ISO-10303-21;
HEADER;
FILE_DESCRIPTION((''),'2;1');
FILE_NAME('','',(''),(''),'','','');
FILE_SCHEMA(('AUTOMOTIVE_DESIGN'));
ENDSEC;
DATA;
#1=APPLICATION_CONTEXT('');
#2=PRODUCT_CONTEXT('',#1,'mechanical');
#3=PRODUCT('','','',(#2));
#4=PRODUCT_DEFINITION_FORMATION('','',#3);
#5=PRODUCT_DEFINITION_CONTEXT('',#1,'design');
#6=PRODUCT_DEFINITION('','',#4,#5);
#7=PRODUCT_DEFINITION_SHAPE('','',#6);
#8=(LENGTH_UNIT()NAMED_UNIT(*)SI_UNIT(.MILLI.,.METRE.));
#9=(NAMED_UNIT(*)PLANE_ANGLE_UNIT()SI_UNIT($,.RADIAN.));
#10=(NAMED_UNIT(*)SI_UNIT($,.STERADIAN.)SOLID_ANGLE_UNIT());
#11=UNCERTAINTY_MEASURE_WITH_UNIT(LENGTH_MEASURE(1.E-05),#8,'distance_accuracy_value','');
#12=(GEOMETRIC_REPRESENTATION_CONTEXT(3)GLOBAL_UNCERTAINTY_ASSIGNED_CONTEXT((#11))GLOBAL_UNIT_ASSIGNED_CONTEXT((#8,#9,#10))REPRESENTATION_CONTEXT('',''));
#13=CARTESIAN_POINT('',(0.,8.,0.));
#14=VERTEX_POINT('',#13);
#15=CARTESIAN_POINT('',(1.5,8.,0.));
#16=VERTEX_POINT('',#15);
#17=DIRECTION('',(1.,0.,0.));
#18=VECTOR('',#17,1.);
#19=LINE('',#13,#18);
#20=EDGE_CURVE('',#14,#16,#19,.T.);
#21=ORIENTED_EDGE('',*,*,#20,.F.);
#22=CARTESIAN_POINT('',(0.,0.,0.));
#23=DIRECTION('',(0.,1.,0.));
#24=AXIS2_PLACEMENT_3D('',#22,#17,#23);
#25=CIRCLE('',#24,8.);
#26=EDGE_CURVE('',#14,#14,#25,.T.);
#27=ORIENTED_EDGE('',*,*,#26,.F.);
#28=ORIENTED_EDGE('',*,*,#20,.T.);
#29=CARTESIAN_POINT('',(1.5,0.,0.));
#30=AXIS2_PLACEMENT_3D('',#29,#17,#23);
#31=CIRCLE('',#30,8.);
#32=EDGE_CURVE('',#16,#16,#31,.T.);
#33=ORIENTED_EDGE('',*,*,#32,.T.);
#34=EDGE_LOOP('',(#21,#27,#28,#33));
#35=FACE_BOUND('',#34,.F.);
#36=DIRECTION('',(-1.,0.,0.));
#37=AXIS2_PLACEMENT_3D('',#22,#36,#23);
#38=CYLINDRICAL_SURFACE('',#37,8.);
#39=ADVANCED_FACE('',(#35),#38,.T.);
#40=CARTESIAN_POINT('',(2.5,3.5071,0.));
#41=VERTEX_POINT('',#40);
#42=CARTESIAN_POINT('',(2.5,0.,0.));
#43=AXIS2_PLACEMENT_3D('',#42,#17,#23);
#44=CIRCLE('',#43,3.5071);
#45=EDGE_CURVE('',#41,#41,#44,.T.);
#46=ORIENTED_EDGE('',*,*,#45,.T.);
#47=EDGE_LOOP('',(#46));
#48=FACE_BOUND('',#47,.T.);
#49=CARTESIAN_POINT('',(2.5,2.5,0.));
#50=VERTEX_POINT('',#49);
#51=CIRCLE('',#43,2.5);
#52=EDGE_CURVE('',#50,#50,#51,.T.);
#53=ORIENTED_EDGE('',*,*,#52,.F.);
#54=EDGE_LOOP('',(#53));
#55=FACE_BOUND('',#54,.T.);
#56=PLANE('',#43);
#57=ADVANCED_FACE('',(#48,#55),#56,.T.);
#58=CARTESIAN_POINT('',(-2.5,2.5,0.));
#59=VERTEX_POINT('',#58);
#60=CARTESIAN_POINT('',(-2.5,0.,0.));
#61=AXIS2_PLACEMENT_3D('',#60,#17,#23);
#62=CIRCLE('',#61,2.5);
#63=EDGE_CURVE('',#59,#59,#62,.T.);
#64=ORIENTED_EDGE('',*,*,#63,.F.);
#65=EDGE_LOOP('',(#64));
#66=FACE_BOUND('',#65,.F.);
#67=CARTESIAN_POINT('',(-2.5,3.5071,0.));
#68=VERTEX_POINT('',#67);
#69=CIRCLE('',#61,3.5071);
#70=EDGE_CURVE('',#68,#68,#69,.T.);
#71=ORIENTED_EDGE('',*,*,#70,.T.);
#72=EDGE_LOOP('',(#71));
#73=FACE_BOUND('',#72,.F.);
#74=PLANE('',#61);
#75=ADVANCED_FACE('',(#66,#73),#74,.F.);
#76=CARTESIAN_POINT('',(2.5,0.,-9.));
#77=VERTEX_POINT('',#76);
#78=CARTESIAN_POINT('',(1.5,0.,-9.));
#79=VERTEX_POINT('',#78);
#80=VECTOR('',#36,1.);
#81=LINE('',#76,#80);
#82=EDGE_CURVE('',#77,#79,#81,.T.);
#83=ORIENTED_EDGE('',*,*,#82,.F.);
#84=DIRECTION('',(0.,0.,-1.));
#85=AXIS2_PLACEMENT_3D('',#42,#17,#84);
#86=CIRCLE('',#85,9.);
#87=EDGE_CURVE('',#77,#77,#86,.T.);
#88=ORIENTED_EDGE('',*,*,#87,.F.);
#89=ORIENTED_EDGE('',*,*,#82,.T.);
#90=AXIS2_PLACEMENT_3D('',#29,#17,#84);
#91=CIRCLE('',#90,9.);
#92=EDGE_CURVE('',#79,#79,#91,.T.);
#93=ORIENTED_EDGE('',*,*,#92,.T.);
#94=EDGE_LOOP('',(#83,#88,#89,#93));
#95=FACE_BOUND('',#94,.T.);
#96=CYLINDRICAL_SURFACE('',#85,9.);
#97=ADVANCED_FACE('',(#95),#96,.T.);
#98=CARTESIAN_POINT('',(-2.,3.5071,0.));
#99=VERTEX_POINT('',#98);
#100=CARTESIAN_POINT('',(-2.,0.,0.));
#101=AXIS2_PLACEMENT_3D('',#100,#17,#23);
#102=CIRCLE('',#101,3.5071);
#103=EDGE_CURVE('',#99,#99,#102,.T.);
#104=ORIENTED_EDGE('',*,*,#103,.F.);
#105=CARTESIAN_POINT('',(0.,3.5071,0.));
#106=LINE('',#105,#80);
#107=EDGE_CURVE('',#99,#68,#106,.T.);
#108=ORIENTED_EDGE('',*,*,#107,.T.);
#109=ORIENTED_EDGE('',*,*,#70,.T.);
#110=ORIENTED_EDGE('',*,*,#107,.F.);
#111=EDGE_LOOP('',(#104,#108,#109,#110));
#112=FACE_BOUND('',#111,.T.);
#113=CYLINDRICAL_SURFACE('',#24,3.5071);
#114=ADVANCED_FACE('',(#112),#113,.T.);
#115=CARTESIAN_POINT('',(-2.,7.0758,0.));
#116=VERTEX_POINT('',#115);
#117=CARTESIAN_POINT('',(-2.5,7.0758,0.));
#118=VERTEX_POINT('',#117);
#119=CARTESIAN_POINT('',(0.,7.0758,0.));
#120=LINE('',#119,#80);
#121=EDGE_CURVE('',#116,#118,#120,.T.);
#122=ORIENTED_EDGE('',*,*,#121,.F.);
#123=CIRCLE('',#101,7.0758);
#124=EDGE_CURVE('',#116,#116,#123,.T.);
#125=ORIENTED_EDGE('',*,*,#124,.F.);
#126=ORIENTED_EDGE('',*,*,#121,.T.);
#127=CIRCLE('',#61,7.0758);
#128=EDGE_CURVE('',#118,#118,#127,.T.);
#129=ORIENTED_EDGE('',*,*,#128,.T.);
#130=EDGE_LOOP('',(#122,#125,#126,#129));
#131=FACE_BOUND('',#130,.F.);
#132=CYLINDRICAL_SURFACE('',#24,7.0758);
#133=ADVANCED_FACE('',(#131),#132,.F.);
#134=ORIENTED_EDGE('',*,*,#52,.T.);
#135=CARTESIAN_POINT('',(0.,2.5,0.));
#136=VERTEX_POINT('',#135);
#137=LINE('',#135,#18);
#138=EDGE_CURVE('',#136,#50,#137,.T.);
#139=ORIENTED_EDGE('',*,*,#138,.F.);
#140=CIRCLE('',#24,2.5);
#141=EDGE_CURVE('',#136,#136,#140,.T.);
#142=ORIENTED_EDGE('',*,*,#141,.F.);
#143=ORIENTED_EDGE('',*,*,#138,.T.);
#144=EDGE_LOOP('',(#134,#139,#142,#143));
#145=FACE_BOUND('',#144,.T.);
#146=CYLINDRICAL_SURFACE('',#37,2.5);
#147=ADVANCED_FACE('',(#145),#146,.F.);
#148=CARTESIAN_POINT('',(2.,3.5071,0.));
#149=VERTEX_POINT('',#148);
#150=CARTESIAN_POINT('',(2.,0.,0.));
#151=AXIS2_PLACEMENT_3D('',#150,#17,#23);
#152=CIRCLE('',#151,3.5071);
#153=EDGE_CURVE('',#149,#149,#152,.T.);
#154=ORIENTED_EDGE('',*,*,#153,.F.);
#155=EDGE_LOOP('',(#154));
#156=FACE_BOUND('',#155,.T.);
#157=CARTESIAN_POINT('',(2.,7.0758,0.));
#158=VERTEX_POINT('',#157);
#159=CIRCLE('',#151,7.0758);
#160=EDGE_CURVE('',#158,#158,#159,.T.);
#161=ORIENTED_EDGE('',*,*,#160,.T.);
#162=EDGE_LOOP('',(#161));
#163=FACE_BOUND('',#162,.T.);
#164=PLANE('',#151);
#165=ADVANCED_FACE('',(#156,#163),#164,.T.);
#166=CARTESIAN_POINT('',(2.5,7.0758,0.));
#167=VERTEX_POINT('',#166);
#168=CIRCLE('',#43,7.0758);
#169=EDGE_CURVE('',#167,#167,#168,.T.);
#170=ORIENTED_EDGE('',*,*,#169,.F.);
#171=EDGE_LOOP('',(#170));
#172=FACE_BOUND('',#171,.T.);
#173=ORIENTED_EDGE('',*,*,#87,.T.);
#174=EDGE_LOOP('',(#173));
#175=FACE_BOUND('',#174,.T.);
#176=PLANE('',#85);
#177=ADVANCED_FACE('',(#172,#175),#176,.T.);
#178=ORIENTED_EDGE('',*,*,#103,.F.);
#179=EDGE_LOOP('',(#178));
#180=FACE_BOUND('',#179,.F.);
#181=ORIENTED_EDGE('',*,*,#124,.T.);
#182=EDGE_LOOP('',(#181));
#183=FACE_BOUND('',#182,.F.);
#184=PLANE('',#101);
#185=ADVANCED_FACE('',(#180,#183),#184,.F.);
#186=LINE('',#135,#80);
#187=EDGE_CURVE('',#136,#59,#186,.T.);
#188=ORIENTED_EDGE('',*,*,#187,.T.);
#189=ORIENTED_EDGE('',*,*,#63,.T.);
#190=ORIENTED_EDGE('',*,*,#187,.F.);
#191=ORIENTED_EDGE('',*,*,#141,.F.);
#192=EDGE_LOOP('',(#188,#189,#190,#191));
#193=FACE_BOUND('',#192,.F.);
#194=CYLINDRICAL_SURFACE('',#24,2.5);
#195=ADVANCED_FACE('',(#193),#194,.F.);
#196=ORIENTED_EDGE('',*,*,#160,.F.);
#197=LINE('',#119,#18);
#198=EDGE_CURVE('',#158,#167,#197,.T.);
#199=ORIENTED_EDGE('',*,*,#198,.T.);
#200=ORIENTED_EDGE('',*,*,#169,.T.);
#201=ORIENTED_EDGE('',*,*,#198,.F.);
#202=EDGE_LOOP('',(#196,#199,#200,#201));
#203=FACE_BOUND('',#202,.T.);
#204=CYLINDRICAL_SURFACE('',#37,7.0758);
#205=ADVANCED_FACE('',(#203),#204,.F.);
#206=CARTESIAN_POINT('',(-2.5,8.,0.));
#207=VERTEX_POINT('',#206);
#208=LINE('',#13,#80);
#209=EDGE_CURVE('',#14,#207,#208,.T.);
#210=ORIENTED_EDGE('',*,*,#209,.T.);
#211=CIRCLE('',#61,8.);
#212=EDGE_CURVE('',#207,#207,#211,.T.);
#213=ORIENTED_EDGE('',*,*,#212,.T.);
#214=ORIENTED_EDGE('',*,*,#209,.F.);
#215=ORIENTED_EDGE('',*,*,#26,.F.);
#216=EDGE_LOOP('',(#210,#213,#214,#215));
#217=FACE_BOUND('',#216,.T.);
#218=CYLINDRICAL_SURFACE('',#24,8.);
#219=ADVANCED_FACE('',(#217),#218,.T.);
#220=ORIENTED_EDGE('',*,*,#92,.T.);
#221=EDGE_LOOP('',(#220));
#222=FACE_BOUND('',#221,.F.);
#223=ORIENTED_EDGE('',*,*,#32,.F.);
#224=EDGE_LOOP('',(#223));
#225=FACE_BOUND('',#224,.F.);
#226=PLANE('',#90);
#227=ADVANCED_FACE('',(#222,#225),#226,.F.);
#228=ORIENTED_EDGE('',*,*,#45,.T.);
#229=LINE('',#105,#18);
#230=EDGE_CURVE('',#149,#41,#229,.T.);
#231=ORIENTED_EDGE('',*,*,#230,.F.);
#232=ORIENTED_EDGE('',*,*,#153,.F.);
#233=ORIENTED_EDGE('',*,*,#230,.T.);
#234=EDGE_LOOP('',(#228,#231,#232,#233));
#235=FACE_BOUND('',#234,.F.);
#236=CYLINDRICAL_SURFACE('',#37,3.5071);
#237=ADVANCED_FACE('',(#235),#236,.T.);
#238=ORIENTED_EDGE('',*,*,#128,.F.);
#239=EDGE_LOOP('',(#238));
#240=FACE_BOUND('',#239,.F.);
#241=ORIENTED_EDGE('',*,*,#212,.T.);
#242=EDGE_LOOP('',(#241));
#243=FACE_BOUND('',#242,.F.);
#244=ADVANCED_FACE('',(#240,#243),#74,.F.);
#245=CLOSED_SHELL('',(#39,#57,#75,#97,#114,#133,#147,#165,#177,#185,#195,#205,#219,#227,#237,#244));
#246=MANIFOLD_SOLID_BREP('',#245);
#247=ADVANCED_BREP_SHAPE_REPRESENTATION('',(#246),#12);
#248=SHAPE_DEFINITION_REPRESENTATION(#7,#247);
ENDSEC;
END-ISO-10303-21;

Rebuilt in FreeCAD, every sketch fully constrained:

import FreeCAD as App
import Part
import Sketcher

V = App.Vector

doc = App.newDocument("Part")
params = doc.addObject("Spreadsheet::Sheet", "Params")
for row, (alias, value) in enumerate([
    ("sketch1_diameter", "16 mm"),
    ("sketch1_diameter2", "5 mm"),
    ("pad1_length", "5 mm"),
    ("pad2_length", "4 mm"),
    ("sketch3_diameter", "18 mm"),
    ("sketch3_diameter2", "16 mm"),
    ("pad3_length", "1 mm"),
], start=1):
    params.set(f"A{row}", alias)
    params.set(f"B{row}", "=" + value)
    params.setAlias(f"B{row}", alias)

body = doc.addObject("PartDesign::Body", "Body")
body.AllowCompound = True

sketch1 = doc.addObject("Sketcher::SketchObject", "Sketch")
body.addObject(sketch1)
sketch1.AttachmentSupport = (doc.YZ_Plane, [""])
sketch1.MapMode = "FlatFace"
sketch1.addGeometry([
    Part.Circle(V(0, 0, 0), V(0, 0, 1), 8),
    Part.Circle(V(0, 0, 0), V(0, 0, 1), 7.0758),
    Part.Circle(V(0, 0, 0), V(0, 0, 1), 3.5071),
    Part.Circle(V(0, 0, 0), V(0, 0, 1), 2.5),
], False)
sketch1.addConstraint([
    Sketcher.Constraint("Coincident", 0, 3, -1, 1),
    Sketcher.Constraint("Coincident", 1, 3, -1, 1),
    Sketcher.Constraint("Coincident", 2, 3, -1, 1),
    Sketcher.Constraint("Coincident", 3, 3, -1, 1),
    Sketcher.Constraint("Diameter", 0, 16.0),
    Sketcher.Constraint("Diameter", 3, 5.0),
    Sketcher.Constraint("Diameter", 1, 14.1516),
    Sketcher.Constraint("Diameter", 2, 7.0142),
])
sketch1.setExpression("Constraints[4]", "Params.sketch1_diameter")
sketch1.setExpression("Constraints[5]", "Params.sketch1_diameter2")
pad1 = doc.addObject("PartDesign::Pad", "Pad")
body.addObject(pad1)
pad1.Profile = sketch1
pad1.setExpression("Length", "Params.pad1_length")
pad1.Midplane = True

sketch2 = doc.addObject("Sketcher::SketchObject", "Sketch001")
body.addObject(sketch2)
sketch2.AttachmentSupport = (doc.YZ_Plane, [""])
sketch2.MapMode = "FlatFace"
sketch2.addGeometry([
    Part.Circle(V(0, 0, 0), V(0, 0, 1), 7.0758),
    Part.Circle(V(0, 0, 0), V(0, 0, 1), 3.5071),
], False)
sketch2.addConstraint([
    Sketcher.Constraint("Coincident", 0, 3, -1, 1),
    Sketcher.Constraint("Coincident", 1, 3, -1, 1),
    Sketcher.Constraint("Diameter", 0, 14.1516),
    Sketcher.Constraint("Diameter", 1, 7.0142),
])
pad2 = doc.addObject("PartDesign::Pad", "Pad001")
body.addObject(pad2)
pad2.Profile = sketch2
pad2.setExpression("Length", "Params.pad2_length")
pad2.Midplane = True

sketch3 = doc.addObject("Sketcher::SketchObject", "Sketch002")
body.addObject(sketch3)
sketch3.AttachmentSupport = (doc.YZ_Plane, [""])
sketch3.MapMode = "FlatFace"
sketch3.AttachmentOffset = App.Placement(V(0, 0, 2.5), App.Rotation())
sketch3.addGeometry([
    Part.Circle(V(0, 0, 0), V(0, 0, 1), 9),
    Part.Circle(V(0, 0, 0), V(0, 0, 1), 8),
], False)
sketch3.addConstraint([
    Sketcher.Constraint("Coincident", 0, 3, -1, 1),
    Sketcher.Constraint("Coincident", 1, 3, -1, 1),
    Sketcher.Constraint("Diameter", 0, 18.0),
    Sketcher.Constraint("Diameter", 1, 16.0),
])
sketch3.setExpression("Constraints[2]", "Params.sketch3_diameter")
sketch3.setExpression("Constraints[3]", "Params.sketch3_diameter2")
pad3 = doc.addObject("PartDesign::Pad", "Pad002")
body.addObject(pad3)
pad3.Profile = sketch3
pad3.setExpression("Length", "Params.pad3_length")
pad3.Reversed = True

doc.recompute()
